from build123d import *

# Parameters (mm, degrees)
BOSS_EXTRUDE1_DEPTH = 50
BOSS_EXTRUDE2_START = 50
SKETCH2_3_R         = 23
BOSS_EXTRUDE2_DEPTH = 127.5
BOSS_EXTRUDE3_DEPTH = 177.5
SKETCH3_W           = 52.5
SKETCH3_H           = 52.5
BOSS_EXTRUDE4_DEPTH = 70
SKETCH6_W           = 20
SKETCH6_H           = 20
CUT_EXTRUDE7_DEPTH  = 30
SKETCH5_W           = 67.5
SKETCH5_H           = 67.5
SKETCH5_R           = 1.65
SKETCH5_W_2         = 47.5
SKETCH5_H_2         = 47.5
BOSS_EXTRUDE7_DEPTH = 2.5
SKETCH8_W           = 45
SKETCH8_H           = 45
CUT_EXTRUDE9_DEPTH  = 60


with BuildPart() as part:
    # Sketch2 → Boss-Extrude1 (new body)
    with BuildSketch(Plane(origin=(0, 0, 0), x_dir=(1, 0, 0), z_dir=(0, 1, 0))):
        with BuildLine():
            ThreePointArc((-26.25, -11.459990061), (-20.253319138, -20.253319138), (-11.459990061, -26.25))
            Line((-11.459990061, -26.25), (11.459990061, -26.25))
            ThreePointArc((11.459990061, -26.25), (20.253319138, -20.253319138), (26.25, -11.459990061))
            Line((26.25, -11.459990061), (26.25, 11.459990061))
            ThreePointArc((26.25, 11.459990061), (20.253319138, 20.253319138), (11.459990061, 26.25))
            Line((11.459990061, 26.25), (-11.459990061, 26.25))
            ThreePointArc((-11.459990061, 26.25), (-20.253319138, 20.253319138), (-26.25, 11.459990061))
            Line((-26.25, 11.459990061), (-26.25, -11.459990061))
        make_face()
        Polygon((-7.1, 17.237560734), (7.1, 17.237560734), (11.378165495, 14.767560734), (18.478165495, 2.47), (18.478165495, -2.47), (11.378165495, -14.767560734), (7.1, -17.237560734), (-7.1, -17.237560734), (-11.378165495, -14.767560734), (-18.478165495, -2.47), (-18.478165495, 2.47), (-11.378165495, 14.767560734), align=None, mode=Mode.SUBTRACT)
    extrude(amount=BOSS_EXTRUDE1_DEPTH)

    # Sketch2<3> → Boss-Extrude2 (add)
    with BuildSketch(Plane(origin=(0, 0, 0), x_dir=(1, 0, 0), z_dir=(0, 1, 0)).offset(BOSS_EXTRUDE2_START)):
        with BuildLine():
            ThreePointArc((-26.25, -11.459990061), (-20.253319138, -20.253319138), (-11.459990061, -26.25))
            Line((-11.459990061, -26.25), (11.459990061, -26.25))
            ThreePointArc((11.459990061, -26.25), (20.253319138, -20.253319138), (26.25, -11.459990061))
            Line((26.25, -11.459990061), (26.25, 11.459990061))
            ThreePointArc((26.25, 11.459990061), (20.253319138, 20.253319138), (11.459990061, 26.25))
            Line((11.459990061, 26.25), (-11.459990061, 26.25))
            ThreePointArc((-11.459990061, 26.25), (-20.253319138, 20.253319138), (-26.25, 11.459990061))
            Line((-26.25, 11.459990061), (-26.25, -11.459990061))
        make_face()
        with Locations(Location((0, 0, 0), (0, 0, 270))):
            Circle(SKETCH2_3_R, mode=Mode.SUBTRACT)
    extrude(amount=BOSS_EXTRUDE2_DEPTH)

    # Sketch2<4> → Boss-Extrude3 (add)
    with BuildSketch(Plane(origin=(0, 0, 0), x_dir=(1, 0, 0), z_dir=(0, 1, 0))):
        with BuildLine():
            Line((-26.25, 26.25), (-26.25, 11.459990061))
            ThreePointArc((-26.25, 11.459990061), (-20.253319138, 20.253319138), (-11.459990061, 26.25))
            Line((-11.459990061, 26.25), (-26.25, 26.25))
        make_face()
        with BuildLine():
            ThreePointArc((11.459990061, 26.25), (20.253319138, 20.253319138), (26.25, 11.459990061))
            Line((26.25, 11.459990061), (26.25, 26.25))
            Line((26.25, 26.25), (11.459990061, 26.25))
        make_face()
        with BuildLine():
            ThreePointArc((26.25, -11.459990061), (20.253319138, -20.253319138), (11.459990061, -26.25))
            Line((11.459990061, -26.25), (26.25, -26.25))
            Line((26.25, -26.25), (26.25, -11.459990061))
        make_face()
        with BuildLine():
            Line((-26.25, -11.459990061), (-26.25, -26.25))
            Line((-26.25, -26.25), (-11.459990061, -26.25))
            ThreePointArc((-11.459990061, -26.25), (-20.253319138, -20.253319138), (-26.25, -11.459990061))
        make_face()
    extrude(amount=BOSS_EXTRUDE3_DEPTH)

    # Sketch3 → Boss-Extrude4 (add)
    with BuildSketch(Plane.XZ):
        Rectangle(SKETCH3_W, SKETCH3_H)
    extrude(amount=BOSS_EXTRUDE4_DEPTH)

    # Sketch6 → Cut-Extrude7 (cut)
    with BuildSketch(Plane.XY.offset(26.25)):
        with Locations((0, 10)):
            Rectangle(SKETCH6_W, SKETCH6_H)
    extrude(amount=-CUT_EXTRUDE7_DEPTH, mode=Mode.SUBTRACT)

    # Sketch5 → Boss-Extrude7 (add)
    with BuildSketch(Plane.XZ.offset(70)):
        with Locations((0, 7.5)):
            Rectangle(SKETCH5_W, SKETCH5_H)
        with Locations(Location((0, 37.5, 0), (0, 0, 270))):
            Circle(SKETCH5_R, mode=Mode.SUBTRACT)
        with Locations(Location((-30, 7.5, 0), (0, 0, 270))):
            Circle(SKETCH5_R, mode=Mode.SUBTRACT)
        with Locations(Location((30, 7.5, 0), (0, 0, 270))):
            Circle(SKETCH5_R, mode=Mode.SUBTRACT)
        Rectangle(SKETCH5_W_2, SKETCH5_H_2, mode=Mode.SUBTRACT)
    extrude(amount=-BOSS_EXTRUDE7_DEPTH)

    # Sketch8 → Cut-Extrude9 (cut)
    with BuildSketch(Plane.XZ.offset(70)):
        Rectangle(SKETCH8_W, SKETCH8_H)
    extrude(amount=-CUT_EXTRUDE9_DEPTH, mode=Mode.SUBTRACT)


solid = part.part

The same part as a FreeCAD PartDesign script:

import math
import FreeCAD as App
import Part
import Sketcher

V = App.Vector
Q = App.Units.Quantity

doc = App.newDocument("Part")
body = doc.addObject("PartDesign::Body", "Body")

# Sketch on XZ plane
sketch1 = body.newObject("Sketcher::SketchObject", "Sketch")
sketch1.AttachmentSupport = (doc.getObject("XZ_Plane"), [""])
sketch1.MapMode = "FlatFace"
sketch1.addGeometry(Part.ArcOfCircle(Part.Circle(V(0, 0, 0), V(0, 0, 1), 28.642519), math.radians(113.584688), math.radians(156.415312)), False)
sketch1.addGeometry(Part.LineSegment(V(-11.45999, 26.25, 0), V(11.45999, 26.25, 0)), False)
sketch1.addGeometry(Part.ArcOfCircle(Part.Circle(V(0, 0, 0), V(0, 0, 1), 28.642519), math.radians(23.584688), math.radians(66.415312)), False)
sketch1.addGeometry(Part.LineSegment(V(26.25, 11.45999, 0), V(26.25, -11.45999, 0)), False)
sketch1.addGeometry(Part.ArcOfCircle(Part.Circle(V(0, 0, 0), V(0, 0, 1), 28.642519), math.radians(-66.415312), math.radians(-23.584688)), False)
sketch1.addGeometry(Part.LineSegment(V(11.45999, -26.25, 0), V(-11.45999, -26.25, 0)), False)
sketch1.addGeometry(Part.ArcOfCircle(Part.Circle(V(0, 0, 0), V(0, 0, 1), 28.642519), math.radians(-156.415312), math.radians(-113.584688)), False)
sketch1.addGeometry(Part.LineSegment(V(-26.25, -11.45999, 0), V(-26.25, 11.45999, 0)), False)
sketch1.addGeometry(Part.LineSegment(V(-11.378165, -14.767561, 0), V(-7.1, -17.237561, 0)), False)
sketch1.addGeometry(Part.LineSegment(V(-7.1, -17.237561, 0), V(7.1, -17.237561, 0)), False)
sketch1.addGeometry(Part.LineSegment(V(7.1, -17.237561, 0), V(11.378165, -14.767561, 0)), False)
sketch1.addGeometry(Part.LineSegment(V(11.378165, -14.767561, 0), V(18.478165, -2.47, 0)), False)
sketch1.addGeometry(Part.LineSegment(V(18.478165, -2.47, 0), V(18.478165, 2.47, 0)), False)
sketch1.addGeometry(Part.LineSegment(V(18.478165, 2.47, 0), V(11.378165, 14.767561, 0)), False)
sketch1.addGeometry(Part.LineSegment(V(11.378165, 14.767561, 0), V(7.1, 17.237561, 0)), False)
sketch1.addGeometry(Part.LineSegment(V(7.1, 17.237561, 0), V(-7.1, 17.237561, 0)), False)
sketch1.addGeometry(Part.LineSegment(V(-7.1, 17.237561, 0), V(-11.378165, 14.767561, 0)), False)
sketch1.addGeometry(Part.LineSegment(V(-11.378165, 14.767561, 0), V(-18.478165, 2.47, 0)), False)
sketch1.addGeometry(Part.LineSegment(V(-18.478165, 2.47, 0), V(-18.478165, -2.47, 0)), False)
sketch1.addGeometry(Part.LineSegment(V(-18.478165, -2.47, 0), V(-11.378165, -14.767561, 0)), False)
sketch1.addConstraint(Sketcher.Constraint("Coincident", 0, 1, 1, 1))
sketch1.addConstraint(Sketcher.Constraint("Coincident", 1, 2, 2, 2))
sketch1.addConstraint(Sketcher.Constraint("Coincident", 2, 1, 3, 1))
sketch1.addConstraint(Sketcher.Constraint("Coincident", 3, 2, 4, 2))
sketch1.addConstraint(Sketcher.Constraint("Coincident", 4, 1, 5, 1))
sketch1.addConstraint(Sketcher.Constraint("Coincident", 5, 2, 6, 2))
sketch1.addConstraint(Sketcher.Constraint("Coincident", 6, 1, 7, 1))
sketch1.addConstraint(Sketcher.Constraint("Coincident", 7, 2, 0, 2))
sketch1.addConstraint(Sketcher.Constraint("Coincident", 8, 2, 9, 1))
sketch1.addConstraint(Sketcher.Constraint("Coincident", 9, 2, 10, 1))
sketch1.addConstraint(Sketcher.Constraint("Coincident", 10, 2, 11, 1))
sketch1.addConstraint(Sketcher.Constraint("Coincident", 11, 2, 12, 1))
sketch1.addConstraint(Sketcher.Constraint("Coincident", 12, 2, 13, 1))
sketch1.addConstraint(Sketcher.Constraint("Coincident", 13, 2, 14, 1))
sketch1.addConstraint(Sketcher.Constraint("Coincident", 14, 2, 15, 1))
sketch1.addConstraint(Sketcher.Constraint("Coincident", 15, 2, 16, 1))
sketch1.addConstraint(Sketcher.Constraint("Coincident", 16, 2, 17, 1))
sketch1.addConstraint(Sketcher.Constraint("Coincident", 17, 2, 18, 1))
sketch1.addConstraint(Sketcher.Constraint("Coincident", 18, 2, 19, 1))
sketch1.addConstraint(Sketcher.Constraint("Coincident", 19, 2, 8, 1))
sketch1.addConstraint(Sketcher.Constraint("Horizontal", 1))
sketch1.addConstraint(Sketcher.Constraint("Vertical", 3))
sketch1.addConstraint(Sketcher.Constraint("Horizontal", 5))
sketch1.addConstraint(Sketcher.Constraint("Vertical", 7))
sketch1.addConstraint(Sketcher.Constraint("Horizontal", 9))
sketch1.addConstraint(Sketcher.Constraint("Vertical", 12))
sketch1.addConstraint(Sketcher.Constraint("Horizontal", 15))
sketch1.addConstraint(Sketcher.Constraint("Vertical", 18))
sketch1.addConstraint(Sketcher.Constraint("Coincident", 0, 3, -1, 1))
sketch1.addConstraint(Sketcher.Constraint("Coincident", 2, 3, -1, 1))
sketch1.addConstraint(Sketcher.Constraint("Coincident", 4, 3, -1, 1))
sketch1.addConstraint(Sketcher.Constraint("Coincident", 6, 3, -1, 1))
sketch1.addConstraint(Sketcher.Constraint("Equal", 0, 2))
sketch1.addConstraint(Sketcher.Constraint("Equal", 2, 4))
sketch1.addConstraint(Sketcher.Constraint("Equal", 4, 6))
sketch1.addConstraint(Sketcher.Constraint("Symmetric", 8, 2, 14, 2, -1, 1))
sketch1.addConstraint(Sketcher.Constraint("Symmetric", 10, 2, 16, 2, -1, 1))
sketch1.addConstraint(Sketcher.Constraint("Symmetric", 11, 2, 17, 2, -1, 1))
sketch1.addConstraint(Sketcher.Constraint("Symmetric", 13, 2, 19, 2, -1, 1))
sketch1.addConstraint(Sketcher.Constraint("Symmetric", 13, 2, 16, 2, -2))
sketch1.addConstraint(Sketcher.Constraint("Perpendicular", 8, 11))
sketch1.addConstraint(Sketcher.Constraint("Perpendicular", 10, 13))
sketch1.addConstraint(Sketcher.Constraint("Perpendicular", 13, 16))
sketch1.addConstraint(Sketcher.Constraint("Perpendicular", 16, 19))
sketch1.addConstraint(Sketcher.Constraint("Horizontal", 3, 2, 6, 1))
sketch1.addConstraint(Sketcher.Constraint("Horizontal", 12, 2, 17, 2))
sketch1.addConstraint(Sketcher.Constraint("Vertical", 1, 2, 4, 1))
sketch1.addConstraint(Sketcher.Constraint("Equal", 5, 3))
sketch1.addConstraint(Sketcher.Constraint("Angle", 8, Q("-30 deg")))
sketch1.addConstraint(Sketcher.Constraint("DistanceX", 9, 1, 9, 2, Q("14.2 mm")))
sketch1.addConstraint(Sketcher.Constraint("Distance", 11, Q("14.2 mm")))
sketch1.addConstraint(Sketcher.Constraint("DistanceY", 12, 1, 12, 2, Q("4.94 mm")))
sketch1.addConstraint(Sketcher.Constraint("Distance", 8, Q("4.94 mm")))
sketch1.addConstraint(Sketcher.Constraint("DistanceY", -1, 1, 0, 1, Q("26.25 mm")))
sketch1.addConstraint(Sketcher.Constraint("Radius", 0, Q("28.642519 mm")))
pad1 = body.newObject("PartDesign::Pad", "Pad")
pad1.Profile = sketch1
pad1.Length = 50
pad1.Reversed = True

# Sketch on XZ plane
sketch2 = body.newObject("Sketcher::SketchObject", "Sketch001")
sketch2.AttachmentSupport = (doc.getObject("XZ_Plane"), [""])
sketch2.MapMode = "FlatFace"
sketch2.AttachmentOffset = App.Placement(V(0, 0, -50), App.Rotation())
sketch2.addGeometry(Part.ArcOfCircle(Part.Circle(V(0, 0, 0), V(0, 0, 1), 28.642519), math.radians(113.584688), math.radians(156.415312)), False)
sketch2.addGeometry(Part.LineSegment(V(-11.45999, 26.25, 0), V(11.45999, 26.25, 0)), False)
sketch2.addGeometry(Part.ArcOfCircle(Part.Circle(V(0, 0, 0), V(0, 0, 1), 28.642519), math.radians(23.584688), math.radians(66.415312)), False)
sketch2.addGeometry(Part.LineSegment(V(26.25, 11.45999, 0), V(26.25, -11.45999, 0)), False)
sketch2.addGeometry(Part.ArcOfCircle(Part.Circle(V(0, 0, 0), V(0, 0, 1), 28.642519), math.radians(-66.415312), math.radians(-23.584688)), False)
sketch2.addGeometry(Part.LineSegment(V(11.45999, -26.25, 0), V(-11.45999, -26.25, 0)), False)
sketch2.addGeometry(Part.ArcOfCircle(Part.Circle(V(0, 0, 0), V(0, 0, 1), 28.642519), math.radians(-156.415312), math.radians(-113.584688)), False)
sketch2.addGeometry(Part.LineSegment(V(-26.25, -11.45999, 0), V(-26.25, 11.45999, 0)), False)
sketch2.addGeometry(Part.Circle(V(0, 0, 0), V(0, 0, 1), 23), False)
sketch2.addConstraint(Sketcher.Constraint("Coincident", 0, 1, 1, 1))
sketch2.addConstraint(Sketcher.Constraint("Coincident", 1, 2, 2, 2))
sketch2.addConstraint(Sketcher.Constraint("Coincident", 2, 1, 3, 1))
sketch2.addConstraint(Sketcher.Constraint("Coincident", 3, 2, 4, 2))
sketch2.addConstraint(Sketcher.Constraint("Coincident", 4, 1, 5, 1))
sketch2.addConstraint(Sketcher.Constraint("Coincident", 5, 2, 6, 2))
sketch2.addConstraint(Sketcher.Constraint("Coincident", 6, 1, 7, 1))
sketch2.addConstraint(Sketcher.Constraint("Coincident", 7, 2, 0, 2))
sketch2.addConstraint(Sketcher.Constraint("Horizontal", 1))
sketch2.addConstraint(Sketcher.Constraint("Vertical", 3))
sketch2.addConstraint(Sketcher.Constraint("Horizontal", 5))
sketch2.addConstraint(Sketcher.Constraint("Vertical", 7))
sketch2.addConstraint(Sketcher.Constraint("Coincident", 0, 3, -1, 1))
sketch2.addConstraint(Sketcher.Constraint("Coincident", 2, 3, -1, 1))
sketch2.addConstraint(Sketcher.Constraint("Coincident", 4, 3, -1, 1))
sketch2.addConstraint(Sketcher.Constraint("Coincident", 6, 3, -1, 1))
sketch2.addConstraint(Sketcher.Constraint("Coincident", 8, 3, -1, 1))
sketch2.addConstraint(Sketcher.Constraint("Equal", 0, 2))
sketch2.addConstraint(Sketcher.Constraint("Equal", 2, 4))
sketch2.addConstraint(Sketcher.Constraint("Equal", 4, 6))
sketch2.addConstraint(Sketcher.Constraint("Horizontal", 3, 2, 6, 1))
sketch2.addConstraint(Sketcher.Constraint("Vertical", 1, 2, 4, 1))
sketch2.addConstraint(Sketcher.Constraint("Equal", 5, 3))
sketch2.addConstraint(Sketcher.Constraint("Diameter", 8, Q("46 mm")))
sketch2.addConstraint(Sketcher.Constraint("DistanceY", -1, 1, 0, 1, Q("26.25 mm")))
sketch2.addConstraint(Sketcher.Constraint("Radius", 0, Q("28.642519 mm")))
pad2 = body.newObject("PartDesign::Pad", "Pad001")
pad2.Profile = sketch2
pad2.Length = 127.5
pad2.Reversed = True

# Sketch on XZ plane
sketch3 = body.newObject("Sketcher::SketchObject", "Sketch002")
sketch3.AttachmentSupport = (doc.getObject("XZ_Plane"), [""])
sketch3.MapMode = "FlatFace"
sketch3.addGeometry(Part.LineSegment(V(-26.25, -26.25, 0), V(-26.25, -11.45999, 0)), False)
sketch3.addGeometry(Part.ArcOfCircle(Part.Circle(V(0, 0, 0), V(0, 0, 1), 28.642519), math.radians(-156.415312), math.radians(-113.584688)), False)
sketch3.addGeometry(Part.LineSegment(V(-11.45999, -26.25, 0), V(-26.25, -26.25, 0)), False)
sketch3.addGeometry(Part.ArcOfCircle(Part.Circle(V(0, 0, 0), V(0, 0, 1), 28.642519), math.radians(-66.415312), math.radians(-23.584688)), False)
sketch3.addGeometry(Part.LineSegment(V(26.25, -11.45999, 0), V(26.25, -26.25, 0)), False)
sketch3.addGeometry(Part.LineSegment(V(26.25, -26.25, 0), V(11.45999, -26.25, 0)), False)
sketch3.addGeometry(Part.ArcOfCircle(Part.Circle(V(0, 0, 0), V(0, 0, 1), 28.642519), math.radians(23.584688), math.radians(66.415312)), False)
sketch3.addGeometry(Part.LineSegment(V(11.45999, 26.25, 0), V(26.25, 26.25, 0)), False)
sketch3.addGeometry(Part.LineSegment(V(26.25, 26.25, 0), V(26.25, 11.45999, 0)), False)
sketch3.addGeometry(Part.LineSegment(V(-26.25, 11.45999, 0), V(-26.25, 26.25, 0)), False)
sketch3.addGeometry(Part.LineSegment(V(-26.25, 26.25, 0), V(-11.45999, 26.25, 0)), False)
sketch3.addGeometry(Part.ArcOfCircle(Part.Circle(V(0, 0, 0), V(0, 0, 1), 28.642519), math.radians(113.584688), math.radians(156.415312)), False)
sketch3.addConstraint(Sketcher.Constraint("Coincident", 0, 2, 1, 1))
sketch3.addConstraint(Sketcher.Constraint("Coincident", 1, 2, 2, 1))
sketch3.addConstraint(Sketcher.Constraint("Coincident", 2, 2, 0, 1))
sketch3.addConstraint(Sketcher.Constraint("Coincident", 3, 2, 4, 1))
sketch3.addConstraint(Sketcher.Constraint("Coincident", 4, 2, 5, 1))
sketch3.addConstraint(Sketcher.Constraint("Coincident", 5, 2, 3, 1))
sketch3.addConstraint(Sketcher.Constraint("Coincident", 6, 2, 7, 1))
sketch3.addConstraint(Sketcher.Constraint("Coincident", 7, 2, 8, 1))
sketch3.addConstraint(Sketcher.Constraint("Coincident", 8, 2, 6, 1))
sketch3.addConstraint(Sketcher.Constraint("Coincident", 9, 2, 10, 1))
sketch3.addConstraint(Sketcher.Constraint("Coincident", 10, 2, 11, 1))
sketch3.addConstraint(Sketcher.Constraint("Coincident", 11, 2, 9, 1))
sketch3.addConstraint(Sketcher.Constraint("Vertical", 0))
sketch3.addConstraint(Sketcher.Constraint("Horizontal", 2))
sketch3.addConstraint(Sketcher.Constraint("Vertical", 4))
sketch3.addConstraint(Sketcher.Constraint("Horizontal", 5))
sketch3.addConstraint(Sketcher.Constraint("Horizontal", 7))
sketch3.addConstraint(Sketcher.Constraint("Vertical", 8))
sketch3.addConstraint(Sketcher.Constraint("Vertical", 9))
sketch3.addConstraint(Sketcher.Constraint("Horizontal", 10))
sketch3.addConstraint(Sketcher.Constraint("Coincident", 1, 3, -1, 1))
sketch3.addConstraint(Sketcher.Constraint("Coincident", 3, 3, -1, 1))
sketch3.addConstraint(Sketcher.Constraint("Coincident", 6, 3, -1, 1))
sketch3.addConstraint(Sketcher.Constraint("Coincident", 11, 3, -1, 1))
sketch3.addConstraint(Sketcher.Constraint("Equal", 1, 3))
sketch3.addConstraint(Sketcher.Constraint("Equal", 3, 6))
sketch3.addConstraint(Sketcher.Constraint("Equal", 6, 11))
sketch3.addConstraint(Sketcher.Constraint("Symmetric", 2, 2, 7, 2, -1, 1))
sketch3.addConstraint(Sketcher.Constraint("Symmetric", 4, 2, 9, 2, -1, 1))
sketch3.addConstraint(Sketcher.Constraint("Symmetric", 2, 2, 4, 2, -2))
sketch3.addConstraint(Sketcher.Constraint("Equal", 10, 0))
sketch3.addConstraint(Sketcher.Constraint("DistanceX", 0, 2, -1, 1, Q("26.25 mm")))
sketch3.addConstraint(Sketcher.Constraint("Radius", 1, Q("28.642519 mm")))
pad3 = body.newObject("PartDesign::Pad", "Pad002")
pad3.Profile = sketch3
pad3.Length = 177.5
pad3.Reversed = True

# Sketch on XZ plane
sketch4 = body.newObject("Sketcher::SketchObject", "Sketch003")
sketch4.AttachmentSupport = (doc.getObject("XZ_Plane"), [""])
sketch4.MapMode = "FlatFace"
sketch4.addGeometry(Part.LineSegment(V(-26.25, 26.25, 0), V(-26.25, -26.25, 0)), False)
sketch4.addGeometry(Part.LineSegment(V(-26.25, -26.25, 0), V(26.25, -26.25, 0)), False)
sketch4.addGeometry(Part.LineSegment(V(26.25, -26.25, 0), V(26.25, 26.25, 0)), False)
sketch4.addGeometry(Part.LineSegment(V(26.25, 26.25, 0), V(-26.25, 26.25, 0)), False)
sketch4.addConstraint(Sketcher.Constraint("Coincident", 0, 2, 1, 1))
sketch4.addConstraint(Sketcher.Constraint("Coincident", 1, 2, 2, 1))
sketch4.addConstraint(Sketcher.Constraint("Coincident", 2, 2, 3, 1))
sketch4.addConstraint(Sketcher.Constraint("Coincident", 3, 2, 0, 1))
sketch4.addConstraint(Sketcher.Constraint("Vertical", 0))
sketch4.addConstraint(Sketcher.Constraint("Horizontal", 1))
sketch4.addConstraint(Sketcher.Constraint("Vertical", 2))
sketch4.addConstraint(Sketcher.Constraint("Horizontal", 3))
sketch4.addConstraint(Sketcher.Constraint("Symmetric", 0, 2, 2, 2, -1, 1))
sketch4.addConstraint(Sketcher.Constraint("Equal", 3, 0))
sketch4.addConstraint(Sketcher.Constraint("DistanceX", 1, 1, 1, 2, Q("52.5 mm")))
pad4 = body.newObject("PartDesign::Pad", "Pad003")
pad4.Profile = sketch4
pad4.Length = 70

# Sketch on XY plane
sketch5 = body.newObject("Sketcher::SketchObject", "Sketch004")
sketch5.AttachmentSupport = (doc.getObject("XY_Plane"), [""])
sketch5.MapMode = "FlatFace"
sketch5.AttachmentOffset = App.Placement(V(0, 0, 26.25), App.Rotation())
sketch5.addGeometry(Part.LineSegment(V(-10, 20, 0), V(-10, 0, 0)), False)
sketch5.addGeometry(Part.LineSegment(V(-10, 0, 0), V(10, 0, 0)), False)
sketch5.addGeometry(Part.LineSegment(V(10, 0, 0), V(10, 20, 0)), False)
sketch5.addGeometry(Part.LineSegment(V(10, 20, 0), V(-10, 20, 0)), False)
sketch5.addConstraint(Sketcher.Constraint("Coincident", 0, 2, 1, 1))
sketch5.addConstraint(Sketcher.Constraint("Coincident", 1, 2, 2, 1))
sketch5.addConstraint(Sketcher.Constraint("Coincident", 2, 2, 3, 1))
sketch5.addConstraint(Sketcher.Constraint("Coincident", 3, 2, 0, 1))
sketch5.addConstraint(Sketcher.Constraint("Vertical", 0))
sketch5.addConstraint(Sketcher.Constraint("Horizontal", 1))
sketch5.addConstraint(Sketcher.Constraint("Vertical", 2))
sketch5.addConstraint(Sketcher.Constraint("Horizontal", 3))
sketch5.addConstraint(Sketcher.Constraint("Symmetric", 0, 2, 1, 2, -1, 1))
sketch5.addConstraint(Sketcher.Constraint("Equal", 3, 0))
sketch5.addConstraint(Sketcher.Constraint("DistanceX", 1, 1, 1, 2, Q("20 mm")))
pocket1 = body.newObject("PartDesign::Pocket", "Pocket")
pocket1.Profile = sketch5
pocket1.Length = 30

# Sketch on XZ plane
sketch6 = body.newObject("Sketcher::SketchObject", "Sketch005")
sketch6.AttachmentSupport = (doc.getObject("XZ_Plane"), [""])
sketch6.MapMode = "FlatFace"
sketch6.AttachmentOffset = App.Placement(V(0, 0, 70), App.Rotation())
sketch6.addGeometry(Part.LineSegment(V(-33.75, 41.25, 0), V(-33.75, -26.25, 0)), False)
sketch6.addGeometry(Part.LineSegment(V(-33.75, -26.25, 0), V(33.75, -26.25, 0)), False)
sketch6.addGeometry(Part.LineSegment(V(33.75, -26.25, 0), V(33.75, 41.25, 0)), False)
sketch6.addGeometry(Part.LineSegment(V(33.75, 41.25, 0), V(-33.75, 41.25, 0)), False)
sketch6.addGeometry(Part.Circle(V(-30, 7.5, 0), V(0, 0, 1), 1.65), False)
sketch6.addGeometry(Part.LineSegment(V(23.75, -23.75, 0), V(-23.75, -23.75, 0)), False)
sketch6.addGeometry(Part.LineSegment(V(-23.75, -23.75, 0), V(-23.75, 23.75, 0)), False)
sketch6.addGeometry(Part.LineSegment(V(-23.75, 23.75, 0), V(23.75, 23.75, 0)), False)
sketch6.addGeometry(Part.LineSegment(V(23.75, 23.75, 0), V(23.75, -23.75, 0)), False)
sketch6.addGeometry(Part.Circle(V(30, 7.5, 0), V(0, 0, 1), 1.65), False)
sketch6.addGeometry(Part.Circle(V(0, 37.5, 0), V(0, 0, 1), 1.65), False)
sketch6.addConstraint(Sketcher.Constraint("Coincident", 0, 2, 1, 1))
sketch6.addConstraint(Sketcher.Constraint("Coincident", 1, 2, 2, 1))
sketch6.addConstraint(Sketcher.Constraint("Coincident", 2, 2, 3, 1))
sketch6.addConstraint(Sketcher.Constraint("Coincident", 3, 2, 0, 1))
sketch6.addConstraint(Sketcher.Constraint("Coincident", 5, 2, 6, 1))
sketch6.addConstraint(Sketcher.Constraint("Coincident", 6, 2, 7, 1))
sketch6.addConstraint(Sketcher.Constraint("Coincident", 7, 2, 8, 1))
sketch6.addConstraint(Sketcher.Constraint("Coincident", 8, 2, 5, 1))
sketch6.addConstraint(Sketcher.Constraint("Vertical", 0))
sketch6.addConstraint(Sketcher.Constraint("Horizontal", 1))
sketch6.addConstraint(Sketcher.Constraint("Vertical", 2))
sketch6.addConstraint(Sketcher.Constraint("Horizontal", 3))
sketch6.addConstraint(Sketcher.Constraint("Horizontal", 5))
sketch6.addConstraint(Sketcher.Constraint("Vertical", 6))
sketch6.addConstraint(Sketcher.Constraint("Horizontal", 7))
sketch6.addConstraint(Sketcher.Constraint("Vertical", 8))
sketch6.addConstraint(Sketcher.Constraint("Equal", 4, 9))
sketch6.addConstraint(Sketcher.Constraint("Equal", 9, 10))
sketch6.addConstraint(Sketcher.Constraint("Symmetric", 5, 2, 7, 2, -1, 1))
sketch6.addConstraint(Sketcher.Constraint("Symmetric", 4, 3, 9, 3, -2))
sketch6.addConstraint(Sketcher.Constraint("PointOnObject", 10, 3, -2))
sketch6.addConstraint(Sketcher.Constraint("Equal", 3, 0))
sketch6.addConstraint(Sketcher.Constraint("Equal", 7, 6))
sketch6.addConstraint(Sketcher.Constraint("Diameter", 4, Q("3.3 mm")))
sketch6.addConstraint(Sketcher.Constraint("DistanceX", 1, 1, 1, 2, Q("67.5 mm")))
sketch6.addConstraint(Sketcher.Constraint("DistanceX", 5, 2, 5, 1, Q("47.5 mm")))
sketch6.addConstraint(Sketcher.Constraint("DistanceX", 4, 3, -1, 1, Q("30 mm")))
sketch6.addConstraint(Sketcher.Constraint("DistanceY", 4, 3, 10, 3, Q("30 mm")))
sketch6.addConstraint(Sketcher.Constraint("DistanceX", 0, 2, 5, 2, Q("10 mm")))
sketch6.addConstraint(Sketcher.Constraint("DistanceY", 0, 2, 6, 2, Q("50 mm")))
sketch6.addConstraint(Sketcher.Constraint("DistanceY", -1, 1, 4, 3, Q("7.5 mm")))
pad5 = body.newObject("PartDesign::Pad", "Pad004")
pad5.Profile = sketch6
pad5.Length = 2.5
pad5.Reversed = True

# Sketch on XZ plane
sketch7 = body.newObject("Sketcher::SketchObject", "Sketch006")
sketch7.AttachmentSupport = (doc.getObject("XZ_Plane"), [""])
sketch7.MapMode = "FlatFace"
sketch7.AttachmentOffset = App.Placement(V(0, 0, 70), App.Rotation())
sketch7.addGeometry(Part.LineSegment(V(-22.5, 22.5, 0), V(-22.5, -22.5, 0)), False)
sketch7.addGeometry(Part.LineSegment(V(-22.5, -22.5, 0), V(22.5, -22.5, 0)), False)
sketch7.addGeometry(Part.LineSegment(V(22.5, -22.5, 0), V(22.5, 22.5, 0)), False)
sketch7.addGeometry(Part.LineSegment(V(22.5, 22.5, 0), V(-22.5, 22.5, 0)), False)
sketch7.addConstraint(Sketcher.Constraint("Coincident", 0, 2, 1, 1))
sketch7.addConstraint(Sketcher.Constraint("Coincident", 1, 2, 2, 1))
sketch7.addConstraint(Sketcher.Constraint("Coincident", 2, 2, 3, 1))
sketch7.addConstraint(Sketcher.Constraint("Coincident", 3, 2, 0, 1))
sketch7.addConstraint(Sketcher.Constraint("Vertical", 0))
sketch7.addConstraint(Sketcher.Constraint("Horizontal", 1))
sketch7.addConstraint(Sketcher.Constraint("Vertical", 2))
sketch7.addConstraint(Sketcher.Constraint("Horizontal", 3))
sketch7.addConstraint(Sketcher.Constraint("Symmetric", 0, 2, 2, 2, -1, 1))
sketch7.addConstraint(Sketcher.Constraint("Equal", 3, 0))
sketch7.addConstraint(Sketcher.Constraint("DistanceX", 1, 1, 1, 2, Q("45 mm")))
pocket2 = body.newObject("PartDesign::Pocket", "Pocket001")
pocket2.Profile = sketch7
pocket2.Length = 60

doc.recompute()
